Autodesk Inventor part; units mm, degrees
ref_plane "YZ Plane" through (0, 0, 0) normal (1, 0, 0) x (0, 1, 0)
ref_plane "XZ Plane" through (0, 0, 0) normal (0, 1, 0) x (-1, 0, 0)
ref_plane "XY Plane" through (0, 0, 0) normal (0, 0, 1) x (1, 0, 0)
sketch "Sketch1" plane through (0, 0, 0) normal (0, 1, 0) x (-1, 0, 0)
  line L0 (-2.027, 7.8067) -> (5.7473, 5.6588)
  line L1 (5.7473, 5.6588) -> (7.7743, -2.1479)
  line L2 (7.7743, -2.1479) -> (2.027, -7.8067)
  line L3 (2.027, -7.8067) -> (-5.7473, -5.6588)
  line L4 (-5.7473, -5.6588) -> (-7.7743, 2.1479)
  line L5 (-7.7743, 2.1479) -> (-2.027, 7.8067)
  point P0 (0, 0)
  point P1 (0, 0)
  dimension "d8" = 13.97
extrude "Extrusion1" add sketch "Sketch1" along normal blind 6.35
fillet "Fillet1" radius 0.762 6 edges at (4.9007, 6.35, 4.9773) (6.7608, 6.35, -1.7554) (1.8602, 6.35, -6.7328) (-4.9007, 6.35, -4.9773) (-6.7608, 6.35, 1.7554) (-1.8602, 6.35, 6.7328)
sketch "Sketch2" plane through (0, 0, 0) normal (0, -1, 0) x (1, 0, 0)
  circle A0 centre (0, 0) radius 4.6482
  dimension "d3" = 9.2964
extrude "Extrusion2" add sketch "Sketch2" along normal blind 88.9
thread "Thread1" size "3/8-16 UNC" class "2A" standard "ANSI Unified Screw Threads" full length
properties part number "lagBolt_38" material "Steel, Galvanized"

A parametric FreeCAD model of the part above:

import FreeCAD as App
import Part
import Sketcher

V = App.Vector
Q = App.Units.Quantity


def edges_at(feature, points):
    """Names of the edges that pass closest to the given points."""
    edges = feature.Shape.Edges
    near = lambda p: min(range(len(edges)), key=lambda i: edges[i].distToShape(Part.Vertex(*p))[0])
    return sorted({f"Edge{near(p) + 1}" for p in points})


def add_polygon(sketch, points):
    """Adds a closed chain of lines whose ends are joined by coincident constraints."""
    first, n = sketch.GeometryCount, len(points)
    for a, b in zip(points, points[1:] + points[:1]):
        sketch.addGeometry(Part.LineSegment(App.Vector(*a, 0), App.Vector(*b, 0)), False)
    for i in range(n):
        sketch.addConstraint(Sketcher.Constraint("Coincident", first + i, 2, first + (i + 1) % n, 1))

doc = App.newDocument("Part")
body = doc.addObject("PartDesign::Body", "Body")

sketch1 = body.newObject("Sketcher::SketchObject", "Sketch")
sketch1.AttachmentSupport = (doc.getObject("XZ_Plane"), [""])
sketch1.MapMode = "FlatFace"
add_polygon(sketch1, [(-5.7473, 5.6588), (2.027, 7.8067), (7.7743, 2.1479), (5.7473, -5.6588), (-2.027, -7.8067), (-7.7743, -2.1479)])
sketch1.addConstraint(Sketcher.Constraint("Symmetric", 0, 2, 3, 2, -1, 1))
sketch1.addConstraint(Sketcher.Constraint("Symmetric", 1, 2, 4, 2, -1, 1))
sketch1.addConstraint(Sketcher.Constraint("Symmetric", 2, 2, 5, 2, -1, 1))
sketch1.addConstraint(Sketcher.Constraint("Equal", 0, 1))
sketch1.addConstraint(Sketcher.Constraint("Equal", 1, 2))
sketch1.addConstraint(Sketcher.Constraint("DistanceX", -1, 1, 0, 2, Q("0.0798 in")))
sketch1.addConstraint(Sketcher.Constraint("DistanceX", 2, 2, 1, 2, Q("0.0798 in")))
sketch1.addConstraint(Sketcher.Constraint("DistanceY", 3, 2, 0, 2, Q("0.6147 in")))
sketch1.addConstraint(Sketcher.Constraint("Distance", 0, Q("8.0656 mm")))
pad1 = body.newObject("PartDesign::Pad", "Pad")
pad1.Profile = sketch1
pad1.Length = Q("0.25 in")
pad1.Reversed = True
doc.recompute()

fillet = body.newObject("PartDesign::Fillet", "Fillet")
fillet.Base = (pad1, edges_at(pad1, [
    (4.901, 6.35, 4.977),
    (6.761, 6.35, -1.755),
    (1.86, 6.35, -6.733),
    (-4.901, 6.35, -4.977),
    (-6.761, 6.35, 1.755),
    (-1.86, 6.35, 6.733),
]))
fillet.Radius = Q("0.03 in")

sketch2 = body.newObject("Sketcher::SketchObject", "Sketch001")
sketch2.AttachmentSupport = (doc.getObject("XZ_Plane"), [""])
sketch2.MapMode = "FlatFace"
sketch2.addGeometry(Part.Circle(V(0, 0, 0), V(0, 0, 1), 4.6482), False)
sketch2.addConstraint(Sketcher.Constraint("Coincident", 0, 3, -1, 1))
sketch2.addConstraint(Sketcher.Constraint("Diameter", 0, Q("0.366 in")))
pad2 = body.newObject("PartDesign::Pad", "Pad001")
pad2.Profile = sketch2
pad2.Length = Q("3.5 in")

doc.recompute()
